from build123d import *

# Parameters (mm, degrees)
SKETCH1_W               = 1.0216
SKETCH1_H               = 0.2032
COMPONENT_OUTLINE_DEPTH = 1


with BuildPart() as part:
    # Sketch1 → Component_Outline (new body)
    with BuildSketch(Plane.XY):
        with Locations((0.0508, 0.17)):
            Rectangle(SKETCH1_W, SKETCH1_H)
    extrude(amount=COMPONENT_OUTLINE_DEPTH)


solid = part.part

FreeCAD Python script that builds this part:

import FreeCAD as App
import Part
import Sketcher
Q = App.Units.Quantity


def add_polygon(sketch, points):
    """Adds a closed chain of lines whose ends are joined by coincident constraints."""
    first, n = sketch.GeometryCount, len(points)
    for a, b in zip(points, points[1:] + points[:1]):
        sketch.addGeometry(Part.LineSegment(App.Vector(*a, 0), App.Vector(*b, 0)), False)
    for i in range(n):
        sketch.addConstraint(Sketcher.Constraint("Coincident", first + i, 2, first + (i + 1) % n, 1))

doc = App.newDocument("Part")
body = doc.addObject("PartDesign::Body", "Body")

sketch1 = body.newObject("Sketcher::SketchObject", "Sketch")
sketch1.AttachmentSupport = (doc.getObject("XY_Plane"), [""])
sketch1.MapMode = "FlatFace"
add_polygon(sketch1, [(-0.46, 0.27), (-0.46, 0.07), (0.56, 0.07), (0.56, 0.27)])
sketch1.addConstraint([
    Sketcher.Constraint("Vertical", 0),
    Sketcher.Constraint("Horizontal", 1),
    Sketcher.Constraint("Vertical", 2),
    Sketcher.Constraint("Horizontal", 3),
    Sketcher.Constraint("DistanceX", 0, 2, -1, 1, Q("0.46 mm")),
    Sketcher.Constraint("DistanceX", 1, 1, 1, 2, Q("1.0216 mm")),
    Sketcher.Constraint("DistanceY", 0, 2, 0, 1, Q("0.2032 mm")),
    Sketcher.Constraint("DistanceY", -1, 1, 0, 2, Q("0.0684 mm")),
])
pad1 = body.newObject("PartDesign::Pad", "Pad")
pad1.Profile = sketch1
pad1.Length = 1

doc.recompute()
